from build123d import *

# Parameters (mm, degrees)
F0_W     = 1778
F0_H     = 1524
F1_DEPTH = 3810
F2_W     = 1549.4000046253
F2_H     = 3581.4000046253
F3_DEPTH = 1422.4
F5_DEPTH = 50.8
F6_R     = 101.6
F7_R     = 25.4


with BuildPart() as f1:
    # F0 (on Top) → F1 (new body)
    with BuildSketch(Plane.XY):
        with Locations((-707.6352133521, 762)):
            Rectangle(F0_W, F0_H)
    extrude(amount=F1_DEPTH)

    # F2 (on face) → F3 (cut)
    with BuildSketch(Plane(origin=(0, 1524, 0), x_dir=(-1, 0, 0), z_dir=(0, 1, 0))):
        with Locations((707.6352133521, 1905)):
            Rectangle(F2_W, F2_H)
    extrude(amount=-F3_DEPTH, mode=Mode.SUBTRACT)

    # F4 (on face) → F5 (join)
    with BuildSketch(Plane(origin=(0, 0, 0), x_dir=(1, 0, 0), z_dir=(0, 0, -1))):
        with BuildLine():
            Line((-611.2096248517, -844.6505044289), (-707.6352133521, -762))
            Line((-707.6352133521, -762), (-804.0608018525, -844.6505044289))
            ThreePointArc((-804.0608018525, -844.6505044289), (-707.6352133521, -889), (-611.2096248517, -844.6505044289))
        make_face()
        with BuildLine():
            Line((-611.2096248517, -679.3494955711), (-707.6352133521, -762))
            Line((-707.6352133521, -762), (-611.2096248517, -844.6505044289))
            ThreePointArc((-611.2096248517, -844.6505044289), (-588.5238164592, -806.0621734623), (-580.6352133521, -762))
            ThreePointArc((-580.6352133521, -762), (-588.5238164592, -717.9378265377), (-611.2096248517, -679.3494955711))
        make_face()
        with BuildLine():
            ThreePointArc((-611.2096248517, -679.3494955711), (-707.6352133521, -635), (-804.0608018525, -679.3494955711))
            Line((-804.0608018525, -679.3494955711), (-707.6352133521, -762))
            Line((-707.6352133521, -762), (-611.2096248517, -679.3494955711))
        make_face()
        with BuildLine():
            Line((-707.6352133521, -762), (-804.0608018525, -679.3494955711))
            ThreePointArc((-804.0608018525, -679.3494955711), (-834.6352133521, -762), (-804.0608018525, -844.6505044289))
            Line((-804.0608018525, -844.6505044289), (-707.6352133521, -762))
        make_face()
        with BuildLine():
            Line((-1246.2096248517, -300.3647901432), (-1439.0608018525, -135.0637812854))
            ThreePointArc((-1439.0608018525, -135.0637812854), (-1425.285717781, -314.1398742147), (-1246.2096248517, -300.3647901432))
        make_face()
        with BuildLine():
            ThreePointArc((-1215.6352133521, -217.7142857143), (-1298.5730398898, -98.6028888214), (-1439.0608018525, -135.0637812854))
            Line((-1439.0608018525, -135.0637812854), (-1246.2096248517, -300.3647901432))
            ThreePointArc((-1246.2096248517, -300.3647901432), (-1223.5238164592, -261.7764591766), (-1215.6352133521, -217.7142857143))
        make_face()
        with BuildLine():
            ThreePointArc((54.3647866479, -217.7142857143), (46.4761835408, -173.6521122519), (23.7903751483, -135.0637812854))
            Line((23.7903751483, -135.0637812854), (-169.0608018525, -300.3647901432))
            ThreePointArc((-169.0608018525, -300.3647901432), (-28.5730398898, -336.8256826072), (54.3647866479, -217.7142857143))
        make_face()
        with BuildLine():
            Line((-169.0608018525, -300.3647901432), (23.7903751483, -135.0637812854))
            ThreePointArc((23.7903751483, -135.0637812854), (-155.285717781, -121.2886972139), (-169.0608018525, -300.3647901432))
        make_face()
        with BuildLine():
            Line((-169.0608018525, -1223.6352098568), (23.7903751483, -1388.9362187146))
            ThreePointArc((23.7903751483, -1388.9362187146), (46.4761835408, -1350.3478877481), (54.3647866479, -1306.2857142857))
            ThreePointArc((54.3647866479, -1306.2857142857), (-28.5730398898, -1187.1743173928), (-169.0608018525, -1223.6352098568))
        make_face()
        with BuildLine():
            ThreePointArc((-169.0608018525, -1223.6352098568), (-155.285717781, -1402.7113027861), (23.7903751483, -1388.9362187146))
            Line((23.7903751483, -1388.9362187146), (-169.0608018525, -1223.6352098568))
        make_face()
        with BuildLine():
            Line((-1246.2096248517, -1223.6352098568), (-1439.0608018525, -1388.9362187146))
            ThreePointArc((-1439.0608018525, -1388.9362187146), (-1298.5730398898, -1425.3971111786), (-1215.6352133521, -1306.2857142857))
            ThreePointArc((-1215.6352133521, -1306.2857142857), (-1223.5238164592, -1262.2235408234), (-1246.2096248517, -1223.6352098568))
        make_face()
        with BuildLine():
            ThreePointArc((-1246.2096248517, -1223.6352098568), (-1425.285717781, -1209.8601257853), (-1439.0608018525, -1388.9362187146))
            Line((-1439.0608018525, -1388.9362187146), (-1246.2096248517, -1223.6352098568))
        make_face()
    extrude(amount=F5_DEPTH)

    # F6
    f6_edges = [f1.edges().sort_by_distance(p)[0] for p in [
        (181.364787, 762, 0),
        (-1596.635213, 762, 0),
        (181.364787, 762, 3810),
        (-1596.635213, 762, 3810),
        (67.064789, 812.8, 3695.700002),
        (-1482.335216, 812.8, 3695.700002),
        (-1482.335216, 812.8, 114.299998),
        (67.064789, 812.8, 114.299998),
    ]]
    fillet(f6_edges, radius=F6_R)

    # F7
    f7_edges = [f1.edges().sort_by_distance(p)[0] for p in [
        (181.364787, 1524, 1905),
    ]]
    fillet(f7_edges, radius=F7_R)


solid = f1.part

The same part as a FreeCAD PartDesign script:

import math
import FreeCAD as App
import Part
import Sketcher
from FreeCAD import Vector
Q = App.Units.Quantity


def edges_at(feature, points):
    """Names of the edges that pass closest to the given points."""
    edges = feature.Shape.Edges
    near = lambda p: min(range(len(edges)), key=lambda i: edges[i].distToShape(Part.Vertex(*p))[0])
    return sorted({f"Edge{near(p) + 1}" for p in points})

doc = App.newDocument("Part")
params = doc.addObject("Spreadsheet::Sheet", "Params")
for row, (alias, value) in enumerate([
    ("sketch1_width", "70 in"),
    ("sketch1_height", "60 in"),
    ("pad1_length", "150 in"),
    ("sketch2_width", "61.0000002 in"),
    ("sketch2_height", "141.0000002 in"),
    ("pocket1_length", "56 in"),
    ("sketch3_diameter", "10 in"),
    ("pad2_length", "2 in"),
    ("fillet_radius", "4 in"),
    ("fillet2_radius", "1 in"),
], start=1):
    params.set(f"A{row}", alias)
    params.set(f"B{row}", "=" + value)
    params.setAlias(f"B{row}", alias)

body = doc.addObject("PartDesign::Body", "Body")

sketch1 = body.newObject("Sketcher::SketchObject", "Sketch")
sketch1.AttachmentSupport = (doc.getObject("XY_Plane"), [""])
sketch1.MapMode = "FlatFace"
sketch1.addGeometry(Part.LineSegment(Vector(-1597, 1524, 0), Vector(-1597, 0, 0)), False)
sketch1.addGeometry(Part.LineSegment(Vector(-1597, 0, 0), Vector(181, 0, 0)), False)
sketch1.addGeometry(Part.LineSegment(Vector(181, 0, 0), Vector(181, 1524, 0)), False)
sketch1.addGeometry(Part.LineSegment(Vector(181, 1524, 0), Vector(-1597, 1524, 0)), False)
sketch1.addConstraint(Sketcher.Constraint("Coincident", 0, 2, 1, 1))
sketch1.addConstraint(Sketcher.Constraint("Coincident", 1, 2, 2, 1))
sketch1.addConstraint(Sketcher.Constraint("Coincident", 2, 2, 3, 1))
sketch1.addConstraint(Sketcher.Constraint("Coincident", 3, 2, 0, 1))
sketch1.addConstraint(Sketcher.Constraint("Vertical", 0))
sketch1.addConstraint(Sketcher.Constraint("Horizontal", 1))
sketch1.addConstraint(Sketcher.Constraint("Vertical", 2))
sketch1.addConstraint(Sketcher.Constraint("Horizontal", 3))
sketch1.addConstraint(Sketcher.Constraint("PointOnObject", 0, 2, -1))
sketch1.addConstraint(Sketcher.Constraint("DistanceX", 1, 1, 1, 2, Q("70 in")))
sketch1.addConstraint(Sketcher.Constraint("DistanceY", 0, 2, 0, 1, Q("60 in")))
sketch1.addConstraint(Sketcher.Constraint("DistanceX", 0, 2, -1, 1, Q("1596.635213 mm")))
sketch1.setExpression("Constraints[9]", "Params.sketch1_width")
sketch1.setExpression("Constraints[10]", "Params.sketch1_height")
pad1 = body.newObject("PartDesign::Pad", "Pad")
pad1.Profile = sketch1
pad1.setExpression("Length", "Params.pad1_length")

sketch2 = body.newObject("Sketcher::SketchObject", "Sketch001")
sketch2.AttachmentSupport = (doc.getObject("XZ_Plane"), [""])
sketch2.MapMode = "FlatFace"
sketch2.AttachmentOffset = App.Placement(Vector(0, 0, -60 * 25.4), App.Rotation())
sketch2.addGeometry(Part.LineSegment(Vector(67, 3696, 0), Vector(67, 114, 0)), False)
sketch2.addGeometry(Part.LineSegment(Vector(67, 114, 0), Vector(-1482, 114, 0)), False)
sketch2.addGeometry(Part.LineSegment(Vector(-1482, 114, 0), Vector(-1482, 3696, 0)), False)
sketch2.addGeometry(Part.LineSegment(Vector(-1482, 3696, 0), Vector(67, 3696, 0)), False)
sketch2.addConstraint(Sketcher.Constraint("Coincident", 0, 2, 1, 1))
sketch2.addConstraint(Sketcher.Constraint("Coincident", 1, 2, 2, 1))
sketch2.addConstraint(Sketcher.Constraint("Coincident", 2, 2, 3, 1))
sketch2.addConstraint(Sketcher.Constraint("Coincident", 3, 2, 0, 1))
sketch2.addConstraint(Sketcher.Constraint("Vertical", 0))
sketch2.addConstraint(Sketcher.Constraint("Horizontal", 1))
sketch2.addConstraint(Sketcher.Constraint("Vertical", 2))
sketch2.addConstraint(Sketcher.Constraint("Horizontal", 3))
sketch2.addConstraint(Sketcher.Constraint("DistanceX", 1, 2, 1, 1, Q("61.0000002 in")))
sketch2.addConstraint(Sketcher.Constraint("DistanceY", 0, 2, 0, 1, Q("141.0000002 in")))
sketch2.addConstraint(Sketcher.Constraint("DistanceY", -1, 1, 0, 2, Q("4.4999999 in")))
sketch2.addConstraint(Sketcher.Constraint("DistanceX", -1, 1, 0, 2, Q("67.064789 mm")))
sketch2.setExpression("Constraints[8]", "Params.sketch2_width")
sketch2.setExpression("Constraints[9]", "Params.sketch2_height")
pocket1 = body.newObject("PartDesign::Pocket", "Pocket")
pocket1.Profile = sketch2
pocket1.setExpression("Length", "Params.pocket1_length")
pocket1.Reversed = True

sketch3 = body.newObject("Sketcher::SketchObject", "Sketch002")
sketch3.AttachmentSupport = (doc.getObject("XY_Plane"), [""])
sketch3.MapMode = "FlatFace"
sketch3.addGeometry(Part.Circle(Vector(-708, 762, 0), Vector(0, 0, 1), 127), False)
sketch3.addGeometry(Part.Circle(Vector(-1343, 218, 0), Vector(0, 0, 1), 127), False)
sketch3.addGeometry(Part.ArcOfCircle(Part.Circle(Vector(-73, 218, 0), Vector(0, 0, 1), 127), math.radians(-41), math.radians(0)), False)
sketch3.addGeometry(Part.ArcOfCircle(Part.Circle(Vector(-73, 218, 0), Vector(0, 0, 1), 127), math.radians(0), math.radians(319)), False)
sketch3.addGeometry(Part.ArcOfCircle(Part.Circle(Vector(-73, 1306, 0), Vector(0, 0, 1), 127), math.radians(0), math.radians(41)), False)
sketch3.addGeometry(Part.ArcOfCircle(Part.Circle(Vector(-73, 1306, 0), Vector(0, 0, 1), 127), math.radians(41), math.radians(360)), False)
sketch3.addGeometry(Part.Circle(Vector(-1343, 1306, 0), Vector(0, 0, 1), 127), False)
sketch3.addConstraint(Sketcher.Constraint("Tangent", 2, 1, 3, 2))
sketch3.addConstraint(Sketcher.Constraint("Coincident", 3, 1, 2, 2))
sketch3.addConstraint(Sketcher.Constraint("Tangent", 4, 1, 5, 2))
sketch3.addConstraint(Sketcher.Constraint("Coincident", 5, 1, 4, 2))
sketch3.addConstraint(Sketcher.Constraint("Equal", 0, 1))
sketch3.addConstraint(Sketcher.Constraint("Equal", 1, 2))
sketch3.addConstraint(Sketcher.Constraint("Equal", 3, 4))
sketch3.addConstraint(Sketcher.Constraint("Equal", 5, 6))
sketch3.addConstraint(Sketcher.Constraint("Horizontal", 1, 3, 2, 3))
sketch3.addConstraint(Sketcher.Constraint("Horizontal", 5, 3, 6, 3))
sketch3.addConstraint(Sketcher.Constraint("Horizontal", 2, 3, 3, 1))
sketch3.addConstraint(Sketcher.Constraint("Horizontal", 6, 3, 4, 1))
sketch3.addConstraint(Sketcher.Constraint("Vertical", 3, 3, 4, 3))
sketch3.addConstraint(Sketcher.Constraint("Vertical", 1, 3, 6, 3))
sketch3.addConstraint(Sketcher.Constraint("Vertical", 2, 1, 5, 1))
sketch3.addConstraint(Sketcher.Constraint("Diameter", 0, Q("10 in")))
sketch3.addConstraint(Sketcher.Constraint("DistanceY", -1, 1, 0, 3, Q("30 in")))
sketch3.addConstraint(Sketcher.Constraint("DistanceX", 1, 3, 0, 3, Q("25 in")))
sketch3.addConstraint(Sketcher.Constraint("DistanceX", 0, 3, 2, 3, Q("25 in")))
sketch3.addConstraint(Sketcher.Constraint("DistanceY", -1, 1, 2, 1, Q("135.063781 mm")))
sketch3.addConstraint(Sketcher.Constraint("DistanceY", -1, 1, 5, 1, Q("1388.936219 mm")))
sketch3.addConstraint(Sketcher.Constraint("DistanceY", 2, 3, 4, 3, Q("1088.571429 mm")))
sketch3.addConstraint(Sketcher.Constraint("DistanceX", 0, 3, -1, 1, Q("707.635213 mm")))
sketch3.setExpression("Constraints[15]", "Params.sketch3_diameter")
pad2 = body.newObject("PartDesign::Pad", "Pad001")
pad2.Profile = sketch3
pad2.setExpression("Length", "Params.pad2_length")
pad2.Reversed = True
doc.recompute()

fillet = body.newObject("PartDesign::Fillet", "Fillet")
fillet.Base = (pad2, edges_at(pad2, [
    (181.365, 762, 0),
    (-1596.635, 762, 0),
    (181.365, 762, 3810),
    (-1596.635, 762, 3810),
    (67.065, 812.8, 3695.7),
    (-1482.335, 812.8, 3695.7),
    (-1482.335, 812.8, 114.3),
    (67.065, 812.8, 114.3),
]))
fillet.setExpression("Radius", "Params.fillet_radius")
doc.recompute()

fillet2 = body.newObject("PartDesign::Fillet", "Fillet001")
fillet2.Base = (fillet, edges_at(fillet, [(181.365, 1524, 1905)]))
fillet2.setExpression("Radius", "Params.fillet2_radius")

doc.recompute()
